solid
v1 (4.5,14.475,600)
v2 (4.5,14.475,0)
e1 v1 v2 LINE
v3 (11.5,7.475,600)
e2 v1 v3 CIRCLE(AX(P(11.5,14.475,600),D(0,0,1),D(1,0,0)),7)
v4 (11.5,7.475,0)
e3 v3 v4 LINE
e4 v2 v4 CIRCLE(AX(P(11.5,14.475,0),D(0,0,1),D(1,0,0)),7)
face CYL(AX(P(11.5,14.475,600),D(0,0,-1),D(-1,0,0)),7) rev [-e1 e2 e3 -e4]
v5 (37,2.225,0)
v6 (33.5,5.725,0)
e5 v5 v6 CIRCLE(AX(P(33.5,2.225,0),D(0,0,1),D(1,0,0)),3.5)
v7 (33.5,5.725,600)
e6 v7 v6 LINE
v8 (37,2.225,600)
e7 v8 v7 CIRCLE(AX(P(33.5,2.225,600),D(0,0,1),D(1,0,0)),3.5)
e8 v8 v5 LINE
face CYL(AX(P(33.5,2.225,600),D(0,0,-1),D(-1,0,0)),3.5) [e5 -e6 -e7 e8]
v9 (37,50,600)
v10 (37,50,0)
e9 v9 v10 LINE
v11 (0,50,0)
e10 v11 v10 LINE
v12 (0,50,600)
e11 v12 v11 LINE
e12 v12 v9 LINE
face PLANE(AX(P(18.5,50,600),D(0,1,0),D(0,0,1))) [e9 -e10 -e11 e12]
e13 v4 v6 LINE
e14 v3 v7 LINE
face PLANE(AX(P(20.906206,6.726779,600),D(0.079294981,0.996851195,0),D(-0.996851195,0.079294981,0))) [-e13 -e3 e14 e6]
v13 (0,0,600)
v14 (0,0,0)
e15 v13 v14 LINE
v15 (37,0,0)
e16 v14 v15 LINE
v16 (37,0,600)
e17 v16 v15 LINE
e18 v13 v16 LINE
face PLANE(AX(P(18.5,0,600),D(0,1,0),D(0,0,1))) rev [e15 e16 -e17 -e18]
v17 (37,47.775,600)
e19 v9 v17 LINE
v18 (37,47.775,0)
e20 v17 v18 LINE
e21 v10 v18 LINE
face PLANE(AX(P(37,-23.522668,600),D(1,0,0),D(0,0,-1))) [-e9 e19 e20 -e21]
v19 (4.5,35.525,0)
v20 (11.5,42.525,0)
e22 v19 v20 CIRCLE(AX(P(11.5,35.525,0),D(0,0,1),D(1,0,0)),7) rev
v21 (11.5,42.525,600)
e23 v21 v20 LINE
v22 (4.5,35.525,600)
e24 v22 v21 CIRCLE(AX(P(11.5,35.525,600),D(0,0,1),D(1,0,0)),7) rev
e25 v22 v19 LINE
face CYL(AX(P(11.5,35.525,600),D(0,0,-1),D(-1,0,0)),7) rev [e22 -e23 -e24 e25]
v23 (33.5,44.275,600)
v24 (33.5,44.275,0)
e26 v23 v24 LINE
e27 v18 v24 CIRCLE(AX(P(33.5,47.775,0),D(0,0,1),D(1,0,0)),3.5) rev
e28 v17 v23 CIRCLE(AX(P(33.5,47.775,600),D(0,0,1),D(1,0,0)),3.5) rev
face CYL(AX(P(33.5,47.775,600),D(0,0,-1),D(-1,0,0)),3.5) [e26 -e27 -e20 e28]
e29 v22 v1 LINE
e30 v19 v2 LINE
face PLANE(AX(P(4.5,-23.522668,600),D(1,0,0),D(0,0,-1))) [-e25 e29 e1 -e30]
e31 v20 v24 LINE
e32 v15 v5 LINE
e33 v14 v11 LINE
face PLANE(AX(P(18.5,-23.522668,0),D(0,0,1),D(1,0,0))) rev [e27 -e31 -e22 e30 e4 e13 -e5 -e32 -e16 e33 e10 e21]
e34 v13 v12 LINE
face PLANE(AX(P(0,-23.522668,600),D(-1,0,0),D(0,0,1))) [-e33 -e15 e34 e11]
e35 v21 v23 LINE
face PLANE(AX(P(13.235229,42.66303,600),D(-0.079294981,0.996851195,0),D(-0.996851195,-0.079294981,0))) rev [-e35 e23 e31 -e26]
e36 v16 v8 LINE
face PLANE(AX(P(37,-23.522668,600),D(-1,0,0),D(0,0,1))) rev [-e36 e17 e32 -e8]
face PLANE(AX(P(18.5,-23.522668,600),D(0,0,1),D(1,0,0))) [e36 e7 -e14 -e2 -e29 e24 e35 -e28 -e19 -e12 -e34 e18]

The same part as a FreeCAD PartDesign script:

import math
import FreeCAD as App
import Part
import Sketcher

V = App.Vector

doc = App.newDocument("Part")
body = doc.addObject("PartDesign::Body", "Body")

sketch1 = body.newObject("Sketcher::SketchObject", "Sketch")
sketch1.AttachmentSupport = (doc.getObject("XY_Plane"), [""])
sketch1.MapMode = "FlatFace"
sketch1.addGeometry([
    Part.ArcOfCircle(Part.Circle(V(11.5, 35.5, 0), V(0, 0, 1), 7), math.radians(90), math.radians(180)),
    Part.LineSegment(V(11.5, 42.5, 0), V(33.5, 44.3, 0)),
    Part.ArcOfCircle(Part.Circle(V(33.5, 47.8, 0), V(0, 0, 1), 3.5), math.radians(-90), math.radians(0)),
    Part.LineSegment(V(37, 47.8, 0), V(37, 50, 0)),
    Part.LineSegment(V(37, 50, 0), V(0, 50, 0)),
    Part.LineSegment(V(0, 50, 0), V(0, 0, 0)),
    Part.LineSegment(V(0, 0, 0), V(37, 0, 0)),
    Part.LineSegment(V(37, 0, 0), V(37, 2.2, 0)),
    Part.ArcOfCircle(Part.Circle(V(33.5, 2.2, 0), V(0, 0, 1), 3.5), math.radians(0), math.radians(90)),
    Part.LineSegment(V(33.5, 5.7, 0), V(11.5, 7.5, 0)),
    Part.ArcOfCircle(Part.Circle(V(11.5, 14.5, 0), V(0, 0, 1), 7), math.radians(-180), math.radians(-90)),
    Part.LineSegment(V(4.5, 14.5, 0), V(4.5, 35.5, 0)),
], False)
sketch1.addConstraint([
    Sketcher.Constraint("Coincident", 0, 1, 1, 1),
    Sketcher.Constraint("Coincident", 1, 2, 2, 1),
    Sketcher.Constraint("Tangent", 2, 2, 3, 1),
    Sketcher.Constraint("Coincident", 3, 2, 4, 1),
    Sketcher.Constraint("Coincident", 4, 2, 5, 1),
    Sketcher.Constraint("Coincident", 5, 2, 6, 1),
    Sketcher.Constraint("Coincident", 6, 2, 7, 1),
    Sketcher.Constraint("Tangent", 7, 2, 8, 1),
    Sketcher.Constraint("Coincident", 8, 2, 9, 1),
    Sketcher.Constraint("Coincident", 9, 2, 10, 2),
    Sketcher.Constraint("Tangent", 10, 1, 11, 1),
    Sketcher.Constraint("Tangent", 11, 2, 0, 2),
    Sketcher.Constraint("Vertical", 3),
    Sketcher.Constraint("Horizontal", 4),
    Sketcher.Constraint("Vertical", 5),
    Sketcher.Constraint("Horizontal", 6),
    Sketcher.Constraint("Vertical", 7),
    Sketcher.Constraint("Vertical", 11),
    Sketcher.Constraint("Coincident", 5, 2, -1, 1),
    Sketcher.Constraint("Equal", 2, 8),
    Sketcher.Constraint("Equal", 0, 10),
    Sketcher.Constraint("Vertical", 2, 3, 8, 3),
    Sketcher.Constraint("Vertical", 10, 3, 0, 1),
    Sketcher.Constraint("Vertical", 8, 3, 1, 2),
    Sketcher.Constraint("Vertical", 1, 2, 8, 2),
    Sketcher.Constraint("Vertical", 0, 1, 9, 2),
    Sketcher.Constraint("Equal", 3, 7),
    Sketcher.Constraint("Equal", 1, 9),
    Sketcher.Constraint("Radius", 0, 7.0),
    Sketcher.Constraint("Radius", 2, 3.5),
    Sketcher.Constraint("DistanceX", 4, 2, 4, 1, 37.0),
    Sketcher.Constraint("DistanceY", 5, 2, 5, 1, 50.0),
    Sketcher.Constraint("DistanceX", 0, 3, 2, 3, 22.0),
    Sketcher.Constraint("DistanceY", 11, 1, 11, 2, 21.05),
    Sketcher.Constraint("DistanceY", 8, 3, 0, 3, 33.3),
])
pad1 = body.newObject("PartDesign::Pad", "Pad")
pad1.Profile = sketch1
pad1.Length = 600

doc.recompute()
